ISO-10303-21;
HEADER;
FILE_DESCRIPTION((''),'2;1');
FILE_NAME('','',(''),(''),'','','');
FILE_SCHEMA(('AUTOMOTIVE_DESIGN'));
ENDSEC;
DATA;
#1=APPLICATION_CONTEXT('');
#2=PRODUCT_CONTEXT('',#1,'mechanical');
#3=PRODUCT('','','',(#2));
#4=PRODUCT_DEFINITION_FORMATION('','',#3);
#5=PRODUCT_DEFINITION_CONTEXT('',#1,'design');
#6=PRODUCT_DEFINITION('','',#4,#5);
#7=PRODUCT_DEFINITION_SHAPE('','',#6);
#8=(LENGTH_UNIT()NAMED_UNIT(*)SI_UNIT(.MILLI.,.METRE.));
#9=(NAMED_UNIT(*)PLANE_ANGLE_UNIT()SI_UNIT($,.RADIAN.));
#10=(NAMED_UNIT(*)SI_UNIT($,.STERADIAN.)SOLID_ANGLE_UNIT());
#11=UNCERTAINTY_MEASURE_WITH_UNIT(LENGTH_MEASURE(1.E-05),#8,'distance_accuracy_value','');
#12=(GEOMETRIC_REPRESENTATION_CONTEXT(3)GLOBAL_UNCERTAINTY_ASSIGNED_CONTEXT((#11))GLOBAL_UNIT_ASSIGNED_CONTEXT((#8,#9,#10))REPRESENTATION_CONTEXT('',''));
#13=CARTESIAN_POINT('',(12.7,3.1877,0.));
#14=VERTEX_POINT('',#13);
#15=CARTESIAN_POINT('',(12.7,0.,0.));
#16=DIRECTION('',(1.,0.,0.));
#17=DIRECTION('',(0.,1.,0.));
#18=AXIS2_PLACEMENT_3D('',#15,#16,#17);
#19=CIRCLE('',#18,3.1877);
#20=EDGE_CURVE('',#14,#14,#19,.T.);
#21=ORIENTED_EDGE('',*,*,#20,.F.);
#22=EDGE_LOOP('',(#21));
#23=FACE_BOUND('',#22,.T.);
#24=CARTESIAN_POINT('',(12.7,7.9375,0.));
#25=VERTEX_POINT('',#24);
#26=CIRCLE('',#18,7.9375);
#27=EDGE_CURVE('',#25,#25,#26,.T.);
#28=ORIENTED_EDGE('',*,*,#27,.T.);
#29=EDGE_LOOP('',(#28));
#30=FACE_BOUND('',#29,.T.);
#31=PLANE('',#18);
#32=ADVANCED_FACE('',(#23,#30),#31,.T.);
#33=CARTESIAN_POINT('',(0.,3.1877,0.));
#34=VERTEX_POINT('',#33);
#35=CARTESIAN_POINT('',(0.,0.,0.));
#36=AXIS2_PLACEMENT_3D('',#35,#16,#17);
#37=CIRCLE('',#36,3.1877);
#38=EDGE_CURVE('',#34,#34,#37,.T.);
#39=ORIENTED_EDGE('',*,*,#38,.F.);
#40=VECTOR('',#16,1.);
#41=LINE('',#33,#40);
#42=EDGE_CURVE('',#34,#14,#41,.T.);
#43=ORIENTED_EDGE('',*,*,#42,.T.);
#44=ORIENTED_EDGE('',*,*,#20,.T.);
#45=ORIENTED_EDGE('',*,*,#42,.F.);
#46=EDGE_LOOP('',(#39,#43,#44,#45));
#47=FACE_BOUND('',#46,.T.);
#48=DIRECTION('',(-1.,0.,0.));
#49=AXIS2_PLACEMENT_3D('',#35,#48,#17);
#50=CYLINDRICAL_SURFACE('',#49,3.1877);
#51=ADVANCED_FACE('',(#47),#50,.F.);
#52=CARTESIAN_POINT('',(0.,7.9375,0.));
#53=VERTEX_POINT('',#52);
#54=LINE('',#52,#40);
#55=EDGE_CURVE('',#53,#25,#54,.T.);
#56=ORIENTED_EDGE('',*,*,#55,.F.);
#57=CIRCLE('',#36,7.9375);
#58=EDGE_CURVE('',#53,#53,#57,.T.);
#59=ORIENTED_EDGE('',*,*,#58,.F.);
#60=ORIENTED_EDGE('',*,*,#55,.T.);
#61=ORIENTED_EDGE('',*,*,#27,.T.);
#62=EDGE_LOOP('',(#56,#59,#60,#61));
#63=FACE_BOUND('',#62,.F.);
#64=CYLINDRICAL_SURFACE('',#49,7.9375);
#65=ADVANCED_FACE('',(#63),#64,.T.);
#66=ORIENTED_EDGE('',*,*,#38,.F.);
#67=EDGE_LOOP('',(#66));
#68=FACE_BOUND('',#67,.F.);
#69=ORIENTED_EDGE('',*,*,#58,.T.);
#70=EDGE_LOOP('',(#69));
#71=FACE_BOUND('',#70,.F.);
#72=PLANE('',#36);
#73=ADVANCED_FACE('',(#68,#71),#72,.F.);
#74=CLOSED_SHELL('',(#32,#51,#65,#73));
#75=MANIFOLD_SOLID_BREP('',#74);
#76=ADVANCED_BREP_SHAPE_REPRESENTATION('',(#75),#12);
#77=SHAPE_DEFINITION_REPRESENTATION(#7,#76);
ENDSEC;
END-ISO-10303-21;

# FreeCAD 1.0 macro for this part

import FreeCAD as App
import Part
import Sketcher

V = App.Vector
Q = App.Units.Quantity

doc = App.newDocument("Part")
body = doc.addObject("PartDesign::Body", "Body")

sketch1 = doc.addObject("Sketcher::SketchObject", "Sketch")
body.addObject(sketch1)
sketch1.AttachmentSupport = (doc.YZ_Plane, [""])
sketch1.MapMode = "FlatFace"
sketch1.addGeometry([
    Part.Circle(V(0, 0, 0), V(0, 0, 1), 7.9375),
    Part.Circle(V(0, 0, 0), V(0, 0, 1), 3.1877),
], False)
sketch1.addConstraint([
    Sketcher.Constraint("Coincident", 0, 3, -1, 1),
    Sketcher.Constraint("Coincident", 1, 3, -1, 1),
    Sketcher.Constraint("Diameter", 0, Q("0.625 in")),
    Sketcher.Constraint("Diameter", 1, Q("0.251 in")),
])
pad1 = doc.addObject("PartDesign::Pad", "Pad")
body.addObject(pad1)
pad1.Profile = sketch1
pad1.Length = Q("0.5 in")

doc.recompute()
